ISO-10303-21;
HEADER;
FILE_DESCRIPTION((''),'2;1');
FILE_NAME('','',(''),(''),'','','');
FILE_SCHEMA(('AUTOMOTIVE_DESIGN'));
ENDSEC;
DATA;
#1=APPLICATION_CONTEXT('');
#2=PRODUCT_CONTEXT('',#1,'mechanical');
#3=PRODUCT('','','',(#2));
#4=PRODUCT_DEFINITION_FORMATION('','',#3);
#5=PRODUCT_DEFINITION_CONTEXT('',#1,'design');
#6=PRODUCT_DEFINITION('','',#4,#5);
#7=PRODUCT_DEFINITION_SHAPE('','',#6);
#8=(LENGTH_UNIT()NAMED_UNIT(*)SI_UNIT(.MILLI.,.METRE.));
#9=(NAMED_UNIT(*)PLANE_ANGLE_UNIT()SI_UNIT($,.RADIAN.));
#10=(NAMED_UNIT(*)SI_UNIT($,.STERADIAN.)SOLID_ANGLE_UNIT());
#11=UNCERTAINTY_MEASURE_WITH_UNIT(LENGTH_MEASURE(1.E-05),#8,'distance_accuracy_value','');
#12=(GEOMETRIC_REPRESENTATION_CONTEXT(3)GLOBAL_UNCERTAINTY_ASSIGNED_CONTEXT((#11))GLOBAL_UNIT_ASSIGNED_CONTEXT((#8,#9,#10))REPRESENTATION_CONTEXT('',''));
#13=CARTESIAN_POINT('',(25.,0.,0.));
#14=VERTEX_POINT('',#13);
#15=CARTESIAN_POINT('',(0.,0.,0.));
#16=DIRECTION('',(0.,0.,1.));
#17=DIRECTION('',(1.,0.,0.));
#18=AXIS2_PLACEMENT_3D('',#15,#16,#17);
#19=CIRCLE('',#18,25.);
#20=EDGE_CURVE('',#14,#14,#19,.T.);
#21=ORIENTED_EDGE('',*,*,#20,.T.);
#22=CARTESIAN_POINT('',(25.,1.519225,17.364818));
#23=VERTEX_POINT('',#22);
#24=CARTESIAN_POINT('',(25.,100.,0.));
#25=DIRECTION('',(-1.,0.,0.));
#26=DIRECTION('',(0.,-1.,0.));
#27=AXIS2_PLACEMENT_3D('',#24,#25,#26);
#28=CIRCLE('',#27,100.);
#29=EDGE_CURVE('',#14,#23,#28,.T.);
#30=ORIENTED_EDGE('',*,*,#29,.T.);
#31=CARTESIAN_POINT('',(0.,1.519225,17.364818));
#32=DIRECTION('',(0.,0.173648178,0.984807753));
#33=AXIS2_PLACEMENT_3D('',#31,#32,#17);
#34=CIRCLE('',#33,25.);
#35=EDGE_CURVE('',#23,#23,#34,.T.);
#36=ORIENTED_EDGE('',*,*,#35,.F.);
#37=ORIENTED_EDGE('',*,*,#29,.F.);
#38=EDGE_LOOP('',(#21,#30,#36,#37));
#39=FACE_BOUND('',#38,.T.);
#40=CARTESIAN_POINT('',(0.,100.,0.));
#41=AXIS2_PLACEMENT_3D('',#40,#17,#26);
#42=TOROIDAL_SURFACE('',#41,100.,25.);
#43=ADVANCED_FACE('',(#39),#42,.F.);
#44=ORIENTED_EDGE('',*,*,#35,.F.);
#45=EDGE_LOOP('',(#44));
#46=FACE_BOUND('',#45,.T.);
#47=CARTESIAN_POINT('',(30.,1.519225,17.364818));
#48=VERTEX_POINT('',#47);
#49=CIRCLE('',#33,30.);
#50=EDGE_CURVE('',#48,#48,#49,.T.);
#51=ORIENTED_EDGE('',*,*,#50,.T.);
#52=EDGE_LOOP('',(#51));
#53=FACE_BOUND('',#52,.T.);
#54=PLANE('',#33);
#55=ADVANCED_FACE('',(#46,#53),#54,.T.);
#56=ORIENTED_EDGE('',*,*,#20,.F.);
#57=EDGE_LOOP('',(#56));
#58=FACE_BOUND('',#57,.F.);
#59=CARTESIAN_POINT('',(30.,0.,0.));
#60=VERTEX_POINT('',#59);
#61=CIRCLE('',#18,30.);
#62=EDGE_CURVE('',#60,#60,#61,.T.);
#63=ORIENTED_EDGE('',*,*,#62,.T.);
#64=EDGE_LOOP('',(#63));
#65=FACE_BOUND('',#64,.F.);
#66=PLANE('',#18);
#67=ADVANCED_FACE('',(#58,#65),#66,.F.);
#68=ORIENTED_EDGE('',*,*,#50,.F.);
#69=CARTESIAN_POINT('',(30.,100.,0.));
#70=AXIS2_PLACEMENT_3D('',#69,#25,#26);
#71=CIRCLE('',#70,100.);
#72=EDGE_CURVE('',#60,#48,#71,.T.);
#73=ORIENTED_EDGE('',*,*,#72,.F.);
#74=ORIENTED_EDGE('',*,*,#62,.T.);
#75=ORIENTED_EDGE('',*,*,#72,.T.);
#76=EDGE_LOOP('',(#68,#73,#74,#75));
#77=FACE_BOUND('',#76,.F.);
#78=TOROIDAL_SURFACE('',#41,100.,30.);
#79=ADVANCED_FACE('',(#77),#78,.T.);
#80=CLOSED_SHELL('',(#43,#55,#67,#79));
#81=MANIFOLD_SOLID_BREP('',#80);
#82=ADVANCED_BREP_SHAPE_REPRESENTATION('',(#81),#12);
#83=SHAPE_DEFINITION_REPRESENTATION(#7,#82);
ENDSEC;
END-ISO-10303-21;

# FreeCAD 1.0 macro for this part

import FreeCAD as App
import Part
import Sketcher
Q = App.Units.Quantity

doc = App.newDocument("Part")
params = doc.addObject("Spreadsheet::Sheet", "Params")
for row, (alias, value) in enumerate([
    ("sketch1_diameter", "50 mm"),
    ("sketch1_diameter2", "60 mm"),
    ("sketch1_width", "10 mm"),
    ("revolution_angle", "10 deg"),
], start=1):
    params.set(f"A{row}", alias)
    params.set(f"B{row}", "=" + value)
    params.setAlias(f"B{row}", alias)

body = doc.addObject("PartDesign::Body", "Body")

# Sketch on XY plane
sketch1 = body.newObject("Sketcher::SketchObject", "Sketch")
sketch1.AttachmentSupport = (doc.getObject("XY_Plane"), [""])
sketch1.MapMode = "FlatFace"
sketch1.addGeometry(Part.Circle(App.Vector(0, 0, 0), App.Vector(0, 0, 1), 30), False)
sketch1.addGeometry(Part.Circle(App.Vector(0, 0, 0), App.Vector(0, 0, 1), 25), False)
sketch1.addGeometry(Part.LineSegment(App.Vector(0, 100, 0), App.Vector(-10, 100, 0)), True)  # axis
sketch1.addConstraint(Sketcher.Constraint("Horizontal", 2))
sketch1.addConstraint(Sketcher.Constraint("Coincident", 0, 3, -1, 1))
sketch1.addConstraint(Sketcher.Constraint("Coincident", 1, 3, -1, 1))
sketch1.addConstraint(Sketcher.Constraint("PointOnObject", 2, 1, -2))
sketch1.addConstraint(Sketcher.Constraint("Diameter", 1, Q("50 mm")))
sketch1.addConstraint(Sketcher.Constraint("Diameter", 0, Q("60 mm")))
sketch1.addConstraint(Sketcher.Constraint("DistanceY", -1, 1, 2, 1, Q("100 mm")))
sketch1.addConstraint(Sketcher.Constraint("DistanceX", 2, 2, 2, 1, Q("10 mm")))
sketch1.setExpression("Constraints[4]", "Params.sketch1_diameter")
sketch1.setExpression("Constraints[5]", "Params.sketch1_diameter2")
sketch1.setExpression("Constraints[7]", "Params.sketch1_width")
revolution = body.newObject("PartDesign::Revolution", "Revolution")
revolution.Profile = sketch1
revolution.ReferenceAxis = (sketch1, ["Axis0"])
revolution.setExpression("Angle", "Params.revolution_angle")

doc.recompute()
